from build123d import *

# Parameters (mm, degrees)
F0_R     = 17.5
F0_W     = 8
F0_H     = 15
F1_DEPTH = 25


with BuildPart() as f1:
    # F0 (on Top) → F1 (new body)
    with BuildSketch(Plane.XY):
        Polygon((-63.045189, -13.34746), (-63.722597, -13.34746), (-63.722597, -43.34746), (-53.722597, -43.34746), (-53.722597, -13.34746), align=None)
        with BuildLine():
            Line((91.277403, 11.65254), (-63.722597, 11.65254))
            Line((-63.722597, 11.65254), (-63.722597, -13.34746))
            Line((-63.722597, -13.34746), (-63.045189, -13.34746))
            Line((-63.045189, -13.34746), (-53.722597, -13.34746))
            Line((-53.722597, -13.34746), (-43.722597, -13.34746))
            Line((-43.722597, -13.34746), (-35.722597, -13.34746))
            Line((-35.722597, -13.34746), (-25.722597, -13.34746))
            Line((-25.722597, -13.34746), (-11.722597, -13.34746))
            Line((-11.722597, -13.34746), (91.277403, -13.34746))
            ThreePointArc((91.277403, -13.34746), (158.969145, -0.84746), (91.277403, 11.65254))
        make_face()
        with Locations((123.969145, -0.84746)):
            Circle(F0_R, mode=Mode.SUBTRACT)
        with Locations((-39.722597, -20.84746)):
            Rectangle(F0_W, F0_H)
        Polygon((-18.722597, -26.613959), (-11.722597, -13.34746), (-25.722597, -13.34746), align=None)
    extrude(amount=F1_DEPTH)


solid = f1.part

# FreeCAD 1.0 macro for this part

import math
import FreeCAD as App
import Part
import Sketcher
from FreeCAD import Vector

doc = App.newDocument("Part")
body = doc.addObject("PartDesign::Body", "Body")

# Sketch on XY plane
sketch1 = doc.addObject("Sketcher::SketchObject", "Sketch")
body.addObject(sketch1)
sketch1.AttachmentSupport = (doc.XY_Plane, [""])
sketch1.MapMode = "FlatFace"
sketch1.addGeometry([
    Part.LineSegment(Vector(-63.722597, -43.34746, 0), Vector(-53.722597, -43.34746, 0)),  # 0
    Part.LineSegment(Vector(-53.722597, -43.34746, 0), Vector(-53.722597, -13.34746, 0)),  # 1
    Part.LineSegment(Vector(-53.722597, -13.34746, 0), Vector(-43.722597, -13.34746, 0)),  # 2
    Part.LineSegment(Vector(-43.722597, -13.34746, 0), Vector(-43.722597, -28.34746, 0)),  # 3
    Part.LineSegment(Vector(-43.722597, -28.34746, 0), Vector(-35.722597, -28.34746, 0)),  # 4
    Part.LineSegment(Vector(-35.722597, -28.34746, 0), Vector(-35.722597, -13.34746, 0)),  # 5
    Part.LineSegment(Vector(-35.722597, -13.34746, 0), Vector(-25.722597, -13.34746, 0)),  # 6
    Part.LineSegment(Vector(-25.722597, -13.34746, 0), Vector(-18.722597, -26.613959, 0)),  # 7
    Part.LineSegment(Vector(-18.722597, -26.613959, 0), Vector(-11.722597, -13.34746, 0)),  # 8
    Part.LineSegment(Vector(-11.722597, -13.34746, 0), Vector(91.277403, -13.34746, 0)),  # 9
    Part.ArcOfCircle(Part.Circle(Vector(123.969145, -0.84746, 0), Vector(0, 0, 1), 35), math.radians(-159.075168), math.radians(159.075168)),  # 10
    Part.LineSegment(Vector(91.277403, 11.65254, 0), Vector(-63.722597, 11.65254, 0)),  # 11
    Part.LineSegment(Vector(-63.722597, 11.65254, 0), Vector(-63.722597, -43.34746, 0)),  # 12
    Part.Circle(Vector(123.969145, -0.84746, 0), Vector(0, 0, 1), 17.5),  # 13
], False)
sketch1.addConstraint([
    Sketcher.Constraint("Coincident", 0, 2, 1, 1),
    Sketcher.Constraint("Coincident", 1, 2, 2, 1),
    Sketcher.Constraint("Coincident", 2, 2, 3, 1),
    Sketcher.Constraint("Coincident", 3, 2, 4, 1),
    Sketcher.Constraint("Coincident", 4, 2, 5, 1),
    Sketcher.Constraint("Coincident", 5, 2, 6, 1),
    Sketcher.Constraint("Coincident", 6, 2, 7, 1),
    Sketcher.Constraint("Coincident", 7, 2, 8, 1),
    Sketcher.Constraint("Coincident", 8, 2, 9, 1),
    Sketcher.Constraint("Coincident", 9, 2, 10, 1),
    Sketcher.Constraint("Coincident", 10, 2, 11, 1),
    Sketcher.Constraint("Coincident", 11, 2, 12, 1),
    Sketcher.Constraint("Coincident", 12, 2, 0, 1),
    Sketcher.Constraint("Horizontal", 0),
    Sketcher.Constraint("Vertical", 1),
    Sketcher.Constraint("Horizontal", 2),
    Sketcher.Constraint("Vertical", 3),
    Sketcher.Constraint("Horizontal", 4),
    Sketcher.Constraint("Vertical", 5),
    Sketcher.Constraint("Horizontal", 6),
    Sketcher.Constraint("Horizontal", 9),
    Sketcher.Constraint("Horizontal", 11),
    Sketcher.Constraint("Vertical", 12),
    Sketcher.Constraint("Coincident", 13, 3, 10, 3),
    Sketcher.Constraint("Horizontal", 2, 2, 5, 2),
    Sketcher.Constraint("Horizontal", 6, 2, 8, 2),
    Sketcher.Constraint("Vertical", 9, 2, 10, 2),
    Sketcher.Constraint("Equal", 0, 2),
    Sketcher.Constraint("Equal", 2, 6),
    Sketcher.Constraint("Equal", 7, 8),
    Sketcher.Constraint("Diameter", 13, 35.0),
    Sketcher.Constraint("Radius", 10, 35.0),
    Sketcher.Constraint("DistanceX", 0, 1, 0, 2, 10.0),
    Sketcher.Constraint("DistanceX", 4, 1, 4, 2, 8.0),
    Sketcher.Constraint("DistanceX", 9, 1, 9, 2, 103.0),
    Sketcher.Constraint("DistanceX", 11, 2, 11, 1, 155.0),
    Sketcher.Constraint("DistanceY", 1, 1, 1, 2, 30.0),
    Sketcher.Constraint("DistanceY", 3, 2, 3, 1, 15.0),
    Sketcher.Constraint("DistanceY", 12, 2, 12, 1, 55.0),
    Sketcher.Constraint("Distance", 7, 15.0),
    Sketcher.Constraint("DistanceY", 10, 3, -1, 1, 0.84746),
    Sketcher.Constraint("DistanceX", -1, 1, 10, 3, 123.969145),
])
pad1 = doc.addObject("PartDesign::Pad", "Pad")
body.addObject(pad1)
pad1.Profile = sketch1
pad1.Length = 25

doc.recompute()
